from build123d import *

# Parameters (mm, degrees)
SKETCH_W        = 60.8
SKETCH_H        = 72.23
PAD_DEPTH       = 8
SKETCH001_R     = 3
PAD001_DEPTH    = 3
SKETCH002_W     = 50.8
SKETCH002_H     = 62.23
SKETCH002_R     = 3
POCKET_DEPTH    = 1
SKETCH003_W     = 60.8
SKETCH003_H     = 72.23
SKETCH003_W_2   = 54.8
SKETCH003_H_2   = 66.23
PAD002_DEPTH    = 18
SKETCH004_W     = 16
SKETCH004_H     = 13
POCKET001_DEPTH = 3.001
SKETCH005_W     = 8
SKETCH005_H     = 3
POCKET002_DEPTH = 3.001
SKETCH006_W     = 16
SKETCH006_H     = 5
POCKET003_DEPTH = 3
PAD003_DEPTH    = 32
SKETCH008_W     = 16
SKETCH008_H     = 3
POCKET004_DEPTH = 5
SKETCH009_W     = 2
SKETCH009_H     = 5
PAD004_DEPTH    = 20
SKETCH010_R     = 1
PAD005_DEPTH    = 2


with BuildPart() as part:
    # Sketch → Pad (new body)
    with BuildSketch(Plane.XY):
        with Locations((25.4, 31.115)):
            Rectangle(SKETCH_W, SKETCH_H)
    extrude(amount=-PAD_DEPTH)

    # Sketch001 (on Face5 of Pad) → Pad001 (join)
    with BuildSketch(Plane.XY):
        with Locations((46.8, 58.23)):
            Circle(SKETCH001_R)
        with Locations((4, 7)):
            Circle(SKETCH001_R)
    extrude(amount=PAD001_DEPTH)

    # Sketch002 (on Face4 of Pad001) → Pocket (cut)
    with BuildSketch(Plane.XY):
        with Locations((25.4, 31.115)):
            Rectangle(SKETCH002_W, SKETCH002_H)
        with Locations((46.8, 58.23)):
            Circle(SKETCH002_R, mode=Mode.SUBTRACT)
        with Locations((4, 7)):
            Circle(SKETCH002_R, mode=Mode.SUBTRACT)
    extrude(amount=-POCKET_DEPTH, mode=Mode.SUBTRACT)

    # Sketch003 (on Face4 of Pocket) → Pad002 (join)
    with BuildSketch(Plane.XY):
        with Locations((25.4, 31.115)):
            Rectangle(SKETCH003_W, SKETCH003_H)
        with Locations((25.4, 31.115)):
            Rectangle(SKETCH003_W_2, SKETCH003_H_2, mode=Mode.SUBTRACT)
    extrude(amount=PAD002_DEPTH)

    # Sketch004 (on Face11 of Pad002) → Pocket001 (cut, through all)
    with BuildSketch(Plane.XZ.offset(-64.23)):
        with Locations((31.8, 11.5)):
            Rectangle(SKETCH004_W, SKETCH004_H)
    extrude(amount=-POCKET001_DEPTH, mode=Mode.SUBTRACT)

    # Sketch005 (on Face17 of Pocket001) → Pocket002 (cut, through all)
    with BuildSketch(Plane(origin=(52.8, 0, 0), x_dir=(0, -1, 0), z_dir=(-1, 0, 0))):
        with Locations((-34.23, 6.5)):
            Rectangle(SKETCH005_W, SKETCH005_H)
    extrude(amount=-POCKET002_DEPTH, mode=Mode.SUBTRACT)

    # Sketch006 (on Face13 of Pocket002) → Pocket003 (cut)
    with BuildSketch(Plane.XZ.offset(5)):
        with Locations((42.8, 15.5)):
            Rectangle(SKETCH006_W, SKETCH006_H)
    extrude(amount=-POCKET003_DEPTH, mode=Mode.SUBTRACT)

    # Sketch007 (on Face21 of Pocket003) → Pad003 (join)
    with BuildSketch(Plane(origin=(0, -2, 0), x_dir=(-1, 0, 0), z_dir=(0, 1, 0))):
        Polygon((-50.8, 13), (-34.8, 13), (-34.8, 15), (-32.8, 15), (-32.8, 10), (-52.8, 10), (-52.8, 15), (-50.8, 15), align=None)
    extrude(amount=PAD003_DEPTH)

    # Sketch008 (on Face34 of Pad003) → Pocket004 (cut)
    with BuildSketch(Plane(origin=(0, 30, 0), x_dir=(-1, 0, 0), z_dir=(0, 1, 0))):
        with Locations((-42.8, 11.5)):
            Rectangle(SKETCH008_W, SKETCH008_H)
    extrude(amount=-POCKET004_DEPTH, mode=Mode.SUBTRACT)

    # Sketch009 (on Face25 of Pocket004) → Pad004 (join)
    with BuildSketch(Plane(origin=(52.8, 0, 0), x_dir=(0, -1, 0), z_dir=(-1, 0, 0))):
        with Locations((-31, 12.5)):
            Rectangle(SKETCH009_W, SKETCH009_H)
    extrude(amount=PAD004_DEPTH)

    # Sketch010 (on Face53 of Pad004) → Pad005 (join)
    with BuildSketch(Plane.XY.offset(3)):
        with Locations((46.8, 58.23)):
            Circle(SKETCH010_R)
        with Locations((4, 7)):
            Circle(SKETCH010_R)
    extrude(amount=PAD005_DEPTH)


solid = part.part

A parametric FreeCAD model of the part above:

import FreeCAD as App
import Part
import Sketcher

V = App.Vector

doc = App.newDocument("Part")
body = doc.addObject("PartDesign::Body", "Body")

sketch1 = doc.addObject("Sketcher::SketchObject", "Sketch")
body.addObject(sketch1)
sketch1.AttachmentSupport = (doc.XY_Plane, [""])
sketch1.MapMode = "FlatFace"
sketch1.addGeometry([
    Part.LineSegment(V(-5, 67, 0), V(-5, -5, 0)),
    Part.LineSegment(V(-5, -5, 0), V(56, -5, 0)),
    Part.LineSegment(V(56, -5, 0), V(56, 67, 0)),
    Part.LineSegment(V(56, 67, 0), V(-5, 67, 0)),
], False)
sketch1.addConstraint([
    Sketcher.Constraint("Coincident", 0, 2, 1, 1),
    Sketcher.Constraint("Coincident", 1, 2, 2, 1),
    Sketcher.Constraint("Coincident", 2, 2, 3, 1),
    Sketcher.Constraint("Coincident", 3, 2, 0, 1),
    Sketcher.Constraint("Vertical", 0),
    Sketcher.Constraint("Horizontal", 1),
    Sketcher.Constraint("Vertical", 2),
    Sketcher.Constraint("Horizontal", 3),
    Sketcher.Constraint("DistanceX", 1, 1, 1, 2, 60.8),
    Sketcher.Constraint("DistanceX", 0, 2, -1, 1, 5.0),
    Sketcher.Constraint("DistanceY", 0, 2, -1, 1, 5.0),
    Sketcher.Constraint("DistanceY", 0, 2, 0, 1, 72.23),
])
pad1 = doc.addObject("PartDesign::Pad", "Pad")
body.addObject(pad1)
pad1.Profile = sketch1
pad1.Length = 8
pad1.Reversed = True

sketch2 = doc.addObject("Sketcher::SketchObject", "Sketch001")
body.addObject(sketch2)
sketch2.AttachmentSupport = (doc.XY_Plane, [""])
sketch2.MapMode = "FlatFace"
sketch2.addGeometry([
    Part.Circle(V(46.8, 58.2, 0), V(0, 0, 1), 3),
    Part.Circle(V(4, 7, 0), V(0, 0, 1), 3),
], False)
sketch2.addConstraint([
    Sketcher.Constraint("Equal", 0, 1),
    Sketcher.Constraint("Diameter", 0, 6.0),
    Sketcher.Constraint("DistanceX", -1, 1, 1, 3, 4.0),
    Sketcher.Constraint("DistanceY", -1, 1, 1, 3, 7.0),
    Sketcher.Constraint("DistanceX", -1, 1, 0, 3, 46.8),
    Sketcher.Constraint("DistanceY", -1, 1, 0, 3, 58.23),
])
pad2 = doc.addObject("PartDesign::Pad", "Pad001")
body.addObject(pad2)
pad2.Profile = sketch2
pad2.Length = 3

sketch3 = doc.addObject("Sketcher::SketchObject", "Sketch002")
body.addObject(sketch3)
sketch3.AttachmentSupport = (doc.XY_Plane, [""])
sketch3.MapMode = "FlatFace"
sketch3.addGeometry([
    Part.LineSegment(V(0, 62.2, 0), V(0, 0, 0)),
    Part.LineSegment(V(0, 0, 0), V(50.8, 0, 0)),
    Part.LineSegment(V(50.8, 0, 0), V(50.8, 62.2, 0)),
    Part.LineSegment(V(50.8, 62.2, 0), V(0, 62.2, 0)),
    Part.Circle(V(4, 7, 0), V(0, 0, 1), 3),
    Part.Circle(V(46.8, 58.2, 0), V(0, 0, 1), 3),
], False)
sketch3.addConstraint([
    Sketcher.Constraint("Coincident", 0, 2, 1, 1),
    Sketcher.Constraint("Coincident", 1, 2, 2, 1),
    Sketcher.Constraint("Coincident", 2, 2, 3, 1),
    Sketcher.Constraint("Coincident", 3, 2, 0, 1),
    Sketcher.Constraint("Vertical", 0),
    Sketcher.Constraint("Horizontal", 1),
    Sketcher.Constraint("Vertical", 2),
    Sketcher.Constraint("Horizontal", 3),
    Sketcher.Constraint("Coincident", 0, 2, -1, 1),
    Sketcher.Constraint("Equal", 4, 5),
    Sketcher.Constraint("Diameter", 4, 6.0),
    Sketcher.Constraint("DistanceX", 1, 1, 1, 2, 50.8),
    Sketcher.Constraint("DistanceX", -1, 1, 4, 3, 4.0),
    Sketcher.Constraint("DistanceY", -1, 1, 4, 3, 7.0),
    Sketcher.Constraint("DistanceX", 5, 3, 1, 2, 4.0),
    Sketcher.Constraint("DistanceY", 5, 3, 2, 2, 4.0),
    Sketcher.Constraint("DistanceY", 0, 2, 0, 1, 62.23),
])
pocket1 = doc.addObject("PartDesign::Pocket", "Pocket")
body.addObject(pocket1)
pocket1.Profile = sketch3
pocket1.Length = 1

sketch4 = doc.addObject("Sketcher::SketchObject", "Sketch003")
body.addObject(sketch4)
sketch4.AttachmentSupport = (doc.XY_Plane, [""])
sketch4.MapMode = "FlatFace"
sketch4.addGeometry([
    Part.LineSegment(V(-5, 67, 0), V(-5, -5, 0)),
    Part.LineSegment(V(-5, -5, 0), V(56, -5, 0)),
    Part.LineSegment(V(56, -5, 0), V(56, 67, 0)),
    Part.LineSegment(V(56, 67, 0), V(-5, 67, 0)),
    Part.LineSegment(V(53, -2, 0), V(-2, -2, 0)),
    Part.LineSegment(V(-2, -2, 0), V(-2, 64, 0)),
    Part.LineSegment(V(-2, 64, 0), V(53, 64, 0)),
    Part.LineSegment(V(53, 64, 0), V(53, -2, 0)),
], False)
sketch4.addConstraint([
    Sketcher.Constraint("Coincident", 0, 2, 1, 1),
    Sketcher.Constraint("Coincident", 1, 2, 2, 1),
    Sketcher.Constraint("Coincident", 2, 2, 3, 1),
    Sketcher.Constraint("Coincident", 3, 2, 0, 1),
    Sketcher.Constraint("Coincident", 4, 2, 5, 1),
    Sketcher.Constraint("Coincident", 5, 2, 6, 1),
    Sketcher.Constraint("Coincident", 6, 2, 7, 1),
    Sketcher.Constraint("Coincident", 7, 2, 4, 1),
    Sketcher.Constraint("Vertical", 0),
    Sketcher.Constraint("Horizontal", 1),
    Sketcher.Constraint("Vertical", 2),
    Sketcher.Constraint("Horizontal", 3),
    Sketcher.Constraint("Horizontal", 4),
    Sketcher.Constraint("Vertical", 5),
    Sketcher.Constraint("Horizontal", 6),
    Sketcher.Constraint("Vertical", 7),
    Sketcher.Constraint("DistanceX", 1, 1, 1, 2, 60.8),
    Sketcher.Constraint("DistanceX", 4, 2, 4, 1, 54.8),
    Sketcher.Constraint("DistanceX", 0, 2, -1, 1, 5.0),
    Sketcher.Constraint("DistanceY", 0, 2, -1, 1, 5.0),
    Sketcher.Constraint("DistanceX", 4, 2, -1, 1, 2.0),
    Sketcher.Constraint("DistanceY", 4, 2, -1, 1, 2.0),
    Sketcher.Constraint("DistanceY", 5, 2, 3, 2, 3.0),
    Sketcher.Constraint("DistanceY", 0, 2, 0, 1, 72.23),
])
pad3 = doc.addObject("PartDesign::Pad", "Pad002")
body.addObject(pad3)
pad3.Profile = sketch4
pad3.Length = 18

sketch5 = doc.addObject("Sketcher::SketchObject", "Sketch004")
body.addObject(sketch5)
sketch5.AttachmentSupport = (doc.XZ_Plane, [""])
sketch5.MapMode = "FlatFace"
sketch5.AttachmentOffset = App.Placement(V(0, 0, -64.23), App.Rotation())
sketch5.addGeometry([
    Part.LineSegment(V(24, 18, 0), V(24, 5, 0)),
    Part.LineSegment(V(24, 5, 0), V(40, 5, 0)),
    Part.LineSegment(V(40, 5, 0), V(40, 18, 0)),
    Part.LineSegment(V(40, 18, 0), V(24, 18, 0)),
], False)
sketch5.addConstraint([
    Sketcher.Constraint("Coincident", 0, 2, 1, 1),
    Sketcher.Constraint("Coincident", 1, 2, 2, 1),
    Sketcher.Constraint("Coincident", 2, 2, 3, 1),
    Sketcher.Constraint("Coincident", 3, 2, 0, 1),
    Sketcher.Constraint("Vertical", 0),
    Sketcher.Constraint("Horizontal", 1),
    Sketcher.Constraint("Vertical", 2),
    Sketcher.Constraint("Horizontal", 3),
    Sketcher.Constraint("DistanceX", 1, 1, 1, 2, 16.0),
    Sketcher.Constraint("DistanceY", 0, 2, 0, 1, 13.0),
    Sketcher.Constraint("DistanceY", -1, 1, 0, 2, 5.0),
    Sketcher.Constraint("DistanceX", -1, 1, 0, 2, 23.8),
])
pocket2 = doc.addObject("PartDesign::Pocket", "Pocket001")
body.addObject(pocket2)
pocket2.Profile = sketch5
pocket2.Type = "ThroughAll"

sketch6 = doc.addObject("Sketcher::SketchObject", "Sketch005")
body.addObject(sketch6)
sketch6.AttachmentSupport = (doc.YZ_Plane, [""])
sketch6.MapMode = "FlatFace"
sketch6.AttachmentOffset = App.Placement(V(0, 0, 52.8), App.Rotation())
sketch6.addGeometry([
    Part.LineSegment(V(38.2, 8, 0), V(38.2, 5, 0)),
    Part.LineSegment(V(38.2, 5, 0), V(30.2, 5, 0)),
    Part.LineSegment(V(30.2, 5, 0), V(30.2, 8, 0)),
    Part.LineSegment(V(30.2, 8, 0), V(38.2, 8, 0)),
], False)
sketch6.addConstraint([
    Sketcher.Constraint("Coincident", 0, 2, 1, 1),
    Sketcher.Constraint("Coincident", 1, 2, 2, 1),
    Sketcher.Constraint("Coincident", 2, 2, 3, 1),
    Sketcher.Constraint("Coincident", 3, 2, 0, 1),
    Sketcher.Constraint("Vertical", 0),
    Sketcher.Constraint("Horizontal", 1),
    Sketcher.Constraint("Vertical", 2),
    Sketcher.Constraint("Horizontal", 3),
    Sketcher.Constraint("DistanceX", 1, 2, 1, 1, 8.0),
    Sketcher.Constraint("DistanceY", 0, 2, 0, 1, 3.0),
    Sketcher.Constraint("DistanceY", -1, 1, 0, 2, 5.0),
    Sketcher.Constraint("DistanceX", -1, 1, 0, 2, 38.23),
])
pocket3 = doc.addObject("PartDesign::Pocket", "Pocket002")
body.addObject(pocket3)
pocket3.Profile = sketch6
pocket3.Type = "ThroughAll"
pocket3.Reversed = True

sketch7 = doc.addObject("Sketcher::SketchObject", "Sketch006")
body.addObject(sketch7)
sketch7.AttachmentSupport = (doc.XZ_Plane, [""])
sketch7.MapMode = "FlatFace"
sketch7.AttachmentOffset = App.Placement(V(0, 0, 5), App.Rotation())
sketch7.addGeometry([
    Part.LineSegment(V(35, 18, 0), V(35, 13, 0)),
    Part.LineSegment(V(35, 13, 0), V(51, 13, 0)),
    Part.LineSegment(V(51, 13, 0), V(51, 18, 0)),
    Part.LineSegment(V(51, 18, 0), V(35, 18, 0)),
], False)
sketch7.addConstraint([
    Sketcher.Constraint("Coincident", 0, 2, 1, 1),
    Sketcher.Constraint("Coincident", 1, 2, 2, 1),
    Sketcher.Constraint("Coincident", 2, 2, 3, 1),
    Sketcher.Constraint("Coincident", 3, 2, 0, 1),
    Sketcher.Constraint("Vertical", 0),
    Sketcher.Constraint("Horizontal", 1),
    Sketcher.Constraint("Vertical", 2),
    Sketcher.Constraint("Horizontal", 3),
    Sketcher.Constraint("DistanceX", 1, 1, 1, 2, 16.0),
    Sketcher.Constraint("DistanceY", 0, 2, 0, 1, 5.0),
    Sketcher.Constraint("DistanceY", -1, 1, 0, 2, 13.0),
    Sketcher.Constraint("DistanceX", -1, 1, 0, 2, 34.8),
])
pocket4 = doc.addObject("PartDesign::Pocket", "Pocket003")
body.addObject(pocket4)
pocket4.Profile = sketch7
pocket4.Length = 3

sketch8 = doc.addObject("Sketcher::SketchObject", "Sketch007")
body.addObject(sketch8)
sketch8.AttachmentSupport = (doc.XZ_Plane, [""])
sketch8.MapMode = "FlatFace"
sketch8.AttachmentOffset = App.Placement(V(0, 0, 2), App.Rotation())
sketch8.addGeometry([
    Part.LineSegment(V(34.8, 13, 0), V(50.8, 13, 0)),
    Part.LineSegment(V(50.8, 13, 0), V(50.8, 15, 0)),
    Part.LineSegment(V(50.8, 15, 0), V(52.8, 15, 0)),
    Part.LineSegment(V(52.8, 15, 0), V(52.8, 10, 0)),
    Part.LineSegment(V(52.8, 10, 0), V(32.8, 10, 0)),
    Part.LineSegment(V(32.8, 10, 0), V(32.8, 15, 0)),
    Part.LineSegment(V(32.8, 15, 0), V(34.8, 15, 0)),
    Part.LineSegment(V(34.8, 15, 0), V(34.8, 13, 0)),
], False)
sketch8.addConstraint([
    Sketcher.Constraint("Coincident", 0, 2, 1, 1),
    Sketcher.Constraint("Coincident", 1, 2, 2, 1),
    Sketcher.Constraint("Coincident", 2, 2, 3, 1),
    Sketcher.Constraint("Coincident", 3, 2, 4, 1),
    Sketcher.Constraint("Coincident", 4, 2, 5, 1),
    Sketcher.Constraint("Coincident", 5, 2, 6, 1),
    Sketcher.Constraint("Coincident", 6, 2, 7, 1),
    Sketcher.Constraint("Coincident", 7, 2, 0, 1),
    Sketcher.Constraint("Horizontal", 0),
    Sketcher.Constraint("Vertical", 1),
    Sketcher.Constraint("Horizontal", 2),
    Sketcher.Constraint("Vertical", 3),
    Sketcher.Constraint("Horizontal", 4),
    Sketcher.Constraint("Vertical", 5),
    Sketcher.Constraint("Horizontal", 6),
    Sketcher.Constraint("Vertical", 7),
    Sketcher.Constraint("Horizontal", 2, 2, 5, 2),
    Sketcher.Constraint("Equal", 2, 6),
    Sketcher.Constraint("Equal", 6, 1),
    Sketcher.Constraint("DistanceX", 0, 1, 0, 2, 16.0),
    Sketcher.Constraint("DistanceX", 2, 1, 2, 2, 2.0),
    Sketcher.Constraint("DistanceY", 3, 2, 3, 1, 5.0),
    Sketcher.Constraint("DistanceY", -1, 1, 0, 2, 13.0),
    Sketcher.Constraint("DistanceX", -1, 1, 0, 2, 50.8),
])
pad4 = doc.addObject("PartDesign::Pad", "Pad003")
body.addObject(pad4)
pad4.Profile = sketch8
pad4.Length = 32
pad4.Reversed = True

sketch9 = doc.addObject("Sketcher::SketchObject", "Sketch008")
body.addObject(sketch9)
sketch9.AttachmentSupport = (doc.XZ_Plane, [""])
sketch9.MapMode = "FlatFace"
sketch9.AttachmentOffset = App.Placement(V(0, 0, -30), App.Rotation())
sketch9.addGeometry([
    Part.LineSegment(V(50.8, 13, 0), V(50.8, 10, 0)),
    Part.LineSegment(V(50.8, 10, 0), V(34.8, 10, 0)),
    Part.LineSegment(V(34.8, 10, 0), V(34.8, 13, 0)),
    Part.LineSegment(V(34.8, 13, 0), V(50.8, 13, 0)),
], False)
sketch9.addConstraint([
    Sketcher.Constraint("Coincident", 0, 2, 1, 1),
    Sketcher.Constraint("Coincident", 1, 2, 2, 1),
    Sketcher.Constraint("Coincident", 2, 2, 3, 1),
    Sketcher.Constraint("Coincident", 3, 2, 0, 1),
    Sketcher.Constraint("Vertical", 0),
    Sketcher.Constraint("Horizontal", 1),
    Sketcher.Constraint("Vertical", 2),
    Sketcher.Constraint("Horizontal", 3),
    Sketcher.Constraint("DistanceX", 1, 2, 1, 1, 16.0),
    Sketcher.Constraint("DistanceY", 0, 2, 0, 1, 3.0),
    Sketcher.Constraint("DistanceY", -1, 1, 0, 2, 10.0),
    Sketcher.Constraint("DistanceX", -1, 1, 0, 2, 50.8),
])
pocket5 = doc.addObject("PartDesign::Pocket", "Pocket004")
body.addObject(pocket5)
pocket5.Profile = sketch9
pocket5.Length = 5
pocket5.Reversed = True

sketch10 = doc.addObject("Sketcher::SketchObject", "Sketch009")
body.addObject(sketch10)
sketch10.AttachmentSupport = (doc.YZ_Plane, [""])
sketch10.MapMode = "FlatFace"
sketch10.AttachmentOffset = App.Placement(V(0, 0, 52.8), App.Rotation())
sketch10.addGeometry([
    Part.LineSegment(V(32, 15, 0), V(32, 10, 0)),
    Part.LineSegment(V(32, 10, 0), V(30, 10, 0)),
    Part.LineSegment(V(30, 10, 0), V(30, 15, 0)),
    Part.LineSegment(V(30, 15, 0), V(32, 15, 0)),
], False)
sketch10.addConstraint([
    Sketcher.Constraint("Coincident", 0, 2, 1, 1),
    Sketcher.Constraint("Coincident", 1, 2, 2, 1),
    Sketcher.Constraint("Coincident", 2, 2, 3, 1),
    Sketcher.Constraint("Coincident", 3, 2, 0, 1),
    Sketcher.Constraint("Vertical", 0),
    Sketcher.Constraint("Horizontal", 1),
    Sketcher.Constraint("Vertical", 2),
    Sketcher.Constraint("Horizontal", 3),
    Sketcher.Constraint("DistanceX", 1, 2, 1, 1, 2.0),
    Sketcher.Constraint("DistanceY", 0, 2, 0, 1, 5.0),
    Sketcher.Constraint("DistanceX", -1, 1, 0, 2, 32.0),
    Sketcher.Constraint("DistanceY", -1, 1, 0, 2, 10.0),
])
pad5 = doc.addObject("PartDesign::Pad", "Pad004")
body.addObject(pad5)
pad5.Profile = sketch10
pad5.Length = 20
pad5.Reversed = True

sketch11 = doc.addObject("Sketcher::SketchObject", "Sketch010")
body.addObject(sketch11)
sketch11.AttachmentSupport = (doc.XY_Plane, [""])
sketch11.MapMode = "FlatFace"
sketch11.AttachmentOffset = App.Placement(V(0, 0, 3), App.Rotation())
sketch11.addGeometry([
    Part.Circle(V(46.8, 58.2, 0), V(0, 0, 1), 1),
    Part.Circle(V(4, 7, 0), V(0, 0, 1), 1),
], False)
sketch11.addConstraint([
    Sketcher.Constraint("Equal", 0, 1),
    Sketcher.Constraint("Diameter", 0, 2.0),
    Sketcher.Constraint("DistanceX", -1, 1, 1, 3, 4.0),
    Sketcher.Constraint("DistanceY", -1, 1, 1, 3, 7.0),
    Sketcher.Constraint("DistanceX", -1, 1, 0, 3, 46.8),
    Sketcher.Constraint("DistanceY", -1, 1, 0, 3, 58.23),
])
pad6 = doc.addObject("PartDesign::Pad", "Pad005")
body.addObject(pad6)
pad6.Profile = sketch11
pad6.Length = 2

doc.recompute()
